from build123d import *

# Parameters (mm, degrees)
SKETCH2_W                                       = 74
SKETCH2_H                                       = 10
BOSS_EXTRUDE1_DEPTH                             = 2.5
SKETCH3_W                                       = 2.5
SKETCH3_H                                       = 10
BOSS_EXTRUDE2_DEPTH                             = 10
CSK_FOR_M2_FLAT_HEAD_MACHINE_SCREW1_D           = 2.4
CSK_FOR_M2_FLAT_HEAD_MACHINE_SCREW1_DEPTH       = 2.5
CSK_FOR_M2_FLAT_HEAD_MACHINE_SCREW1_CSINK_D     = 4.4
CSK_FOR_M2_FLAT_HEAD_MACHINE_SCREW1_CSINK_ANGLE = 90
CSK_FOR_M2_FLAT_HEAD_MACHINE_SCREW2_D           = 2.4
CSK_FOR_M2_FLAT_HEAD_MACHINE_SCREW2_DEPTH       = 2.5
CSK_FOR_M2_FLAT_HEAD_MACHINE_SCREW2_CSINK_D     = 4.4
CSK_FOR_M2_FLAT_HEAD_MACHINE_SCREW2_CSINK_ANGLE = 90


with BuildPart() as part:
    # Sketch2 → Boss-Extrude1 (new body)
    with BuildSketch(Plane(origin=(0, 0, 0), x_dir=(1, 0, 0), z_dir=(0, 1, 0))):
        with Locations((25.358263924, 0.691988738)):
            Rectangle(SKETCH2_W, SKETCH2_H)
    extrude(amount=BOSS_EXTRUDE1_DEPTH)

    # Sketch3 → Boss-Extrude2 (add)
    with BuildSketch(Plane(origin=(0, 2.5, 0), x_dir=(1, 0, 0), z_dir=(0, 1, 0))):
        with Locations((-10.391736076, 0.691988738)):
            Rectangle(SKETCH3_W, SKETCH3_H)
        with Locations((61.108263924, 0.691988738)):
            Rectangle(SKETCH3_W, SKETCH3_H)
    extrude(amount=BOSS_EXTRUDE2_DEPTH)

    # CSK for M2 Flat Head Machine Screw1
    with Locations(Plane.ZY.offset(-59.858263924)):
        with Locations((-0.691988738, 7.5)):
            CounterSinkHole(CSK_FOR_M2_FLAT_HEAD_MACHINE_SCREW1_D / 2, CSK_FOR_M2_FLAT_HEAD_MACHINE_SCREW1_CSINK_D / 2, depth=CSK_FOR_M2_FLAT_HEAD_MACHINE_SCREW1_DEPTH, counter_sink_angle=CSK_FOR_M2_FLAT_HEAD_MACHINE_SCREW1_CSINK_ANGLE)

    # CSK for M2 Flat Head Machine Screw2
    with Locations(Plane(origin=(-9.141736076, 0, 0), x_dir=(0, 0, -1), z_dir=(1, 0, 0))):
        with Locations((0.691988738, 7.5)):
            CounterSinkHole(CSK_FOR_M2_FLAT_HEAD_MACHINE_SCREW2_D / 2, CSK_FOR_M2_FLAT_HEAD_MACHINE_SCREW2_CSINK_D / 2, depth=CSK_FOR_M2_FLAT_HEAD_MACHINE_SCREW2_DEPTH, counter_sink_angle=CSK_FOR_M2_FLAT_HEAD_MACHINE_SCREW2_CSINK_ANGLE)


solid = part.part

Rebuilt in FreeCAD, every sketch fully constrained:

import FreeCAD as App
import Part
import Sketcher
Q = App.Units.Quantity


def add_polygon(sketch, points):
    """Adds a closed chain of lines whose ends are joined by coincident constraints."""
    first, n = sketch.GeometryCount, len(points)
    for a, b in zip(points, points[1:] + points[:1]):
        sketch.addGeometry(Part.LineSegment(App.Vector(*a, 0), App.Vector(*b, 0)), False)
    for i in range(n):
        sketch.addConstraint(Sketcher.Constraint("Coincident", first + i, 2, first + (i + 1) % n, 1))

doc = App.newDocument("Part")
body = doc.addObject("PartDesign::Body", "Body")

# Sketch on XZ plane
sketch1 = body.newObject("Sketcher::SketchObject", "Sketch")
sketch1.AttachmentSupport = (doc.getObject("XZ_Plane"), [""])
sketch1.MapMode = "FlatFace"
add_polygon(sketch1, [(-12, -6), (-12, 4), (62, 4), (62, -6)])  # lines 0-3
sketch1.addConstraint([
    Sketcher.Constraint("Vertical", 0),
    Sketcher.Constraint("Horizontal", 1),
    Sketcher.Constraint("Vertical", 2),
    Sketcher.Constraint("Horizontal", 3),
    Sketcher.Constraint("DistanceX", 1, 1, 1, 2, Q("74 mm")),
    Sketcher.Constraint("DistanceY", 0, 1, 0, 2, Q("10 mm")),
    Sketcher.Constraint("DistanceY", -1, 1, 0, 2, Q("4.308011 mm")),
    Sketcher.Constraint("DistanceX", 0, 2, -1, 1, Q("11.641736 mm")),
])
pad1 = body.newObject("PartDesign::Pad", "Pad")
pad1.Profile = sketch1
pad1.Length = 2.5
pad1.Reversed = True

# Sketch on XZ plane
sketch2 = body.newObject("Sketcher::SketchObject", "Sketch001")
sketch2.AttachmentSupport = (doc.getObject("XZ_Plane"), [""])
sketch2.MapMode = "FlatFace"
sketch2.AttachmentOffset = App.Placement(App.Vector(0, 0, -2.5), App.Rotation())
add_polygon(sketch2, [(-11.6, -5.7), (-11.6, 4.3), (-9.1, 4.3), (-9.1, -5.7)])  # lines 0-3
add_polygon(sketch2, [(59.9, -5.7), (59.9, 4.3), (62.4, 4.3), (62.4, -5.7)])  # lines 4-7
sketch2.addConstraint([
    Sketcher.Constraint("Vertical", 0),
    Sketcher.Constraint("Horizontal", 1),
    Sketcher.Constraint("Vertical", 2),
    Sketcher.Constraint("Horizontal", 3),
    Sketcher.Constraint("Vertical", 4),
    Sketcher.Constraint("Horizontal", 5),
    Sketcher.Constraint("Vertical", 6),
    Sketcher.Constraint("Horizontal", 7),
    Sketcher.Constraint("Horizontal", 1, 2, 4, 2),
    Sketcher.Constraint("Horizontal", 3, 2, 6, 2),
    Sketcher.Constraint("Equal", 3, 5),
    Sketcher.Constraint("DistanceY", 0, 1, 0, 2, Q("10 mm")),
    Sketcher.Constraint("DistanceX", 1, 1, 1, 2, Q("2.5 mm")),
    Sketcher.Constraint("DistanceX", 1, 2, 4, 2, Q("69 mm")),
    Sketcher.Constraint("DistanceY", -1, 1, 0, 2, Q("4.308011 mm")),
    Sketcher.Constraint("DistanceX", 0, 2, -1, 1, Q("11.641736 mm")),
])
pad2 = body.newObject("PartDesign::Pad", "Pad001")
pad2.Profile = sketch2
pad2.Length = 10
pad2.Reversed = True

# Sketch on YZ plane
sketch3 = body.newObject("Sketcher::SketchObject", "Sketch002")
sketch3.AttachmentSupport = (doc.getObject("YZ_Plane"), [""])
sketch3.MapMode = "FlatFace"
sketch3.AttachmentOffset = App.Placement(App.Vector(0, 0, 59.858264), App.Rotation())
sketch3.addGeometry(Part.Circle(App.Vector(7.5, -0.7, 0), App.Vector(0, 0, 1), 1.2), False)
sketch3.addConstraint([
    Sketcher.Constraint("Diameter", 0, Q("2.4 mm")),
    Sketcher.Constraint("DistanceX", -1, 1, 0, 3, Q("7.5 mm")),
    Sketcher.Constraint("DistanceY", 0, 3, -1, 1, Q("0.691989 mm")),
])
doc.recompute()
hole = body.newObject("PartDesign::Hole", "Hole")
hole.Profile = sketch3
hole.ThreadType = "None"
hole.Diameter = 2.4
hole.DepthType = "Dimension"
hole.Depth = 2.5
hole.DrillPoint = "Flat"
hole.HoleCutType = "Countersink"
hole.HoleCutDiameter = 4.4
hole.HoleCutCountersinkAngle = 90
hole.Reversed = True

# Sketch on YZ plane
sketch4 = body.newObject("Sketcher::SketchObject", "Sketch003")
sketch4.AttachmentSupport = (doc.getObject("YZ_Plane"), [""])
sketch4.MapMode = "FlatFace"
sketch4.AttachmentOffset = App.Placement(App.Vector(0, 0, -9.141736), App.Rotation())
sketch4.addGeometry(Part.Circle(App.Vector(7.5, -0.7, 0), App.Vector(0, 0, 1), 1.2), False)
sketch4.addConstraint([
    Sketcher.Constraint("Diameter", 0, Q("2.4 mm")),
    Sketcher.Constraint("DistanceX", -1, 1, 0, 3, Q("7.5 mm")),
    Sketcher.Constraint("DistanceY", 0, 3, -1, 1, Q("0.691989 mm")),
])
doc.recompute()
hole2 = body.newObject("PartDesign::Hole", "Hole001")
hole2.Profile = sketch4
hole2.ThreadType = "None"
hole2.Diameter = 2.4
hole2.DepthType = "Dimension"
hole2.Depth = 2.5
hole2.DrillPoint = "Flat"
hole2.HoleCutType = "Countersink"
hole2.HoleCutDiameter = 4.4
hole2.HoleCutCountersinkAngle = 90

doc.recompute()
